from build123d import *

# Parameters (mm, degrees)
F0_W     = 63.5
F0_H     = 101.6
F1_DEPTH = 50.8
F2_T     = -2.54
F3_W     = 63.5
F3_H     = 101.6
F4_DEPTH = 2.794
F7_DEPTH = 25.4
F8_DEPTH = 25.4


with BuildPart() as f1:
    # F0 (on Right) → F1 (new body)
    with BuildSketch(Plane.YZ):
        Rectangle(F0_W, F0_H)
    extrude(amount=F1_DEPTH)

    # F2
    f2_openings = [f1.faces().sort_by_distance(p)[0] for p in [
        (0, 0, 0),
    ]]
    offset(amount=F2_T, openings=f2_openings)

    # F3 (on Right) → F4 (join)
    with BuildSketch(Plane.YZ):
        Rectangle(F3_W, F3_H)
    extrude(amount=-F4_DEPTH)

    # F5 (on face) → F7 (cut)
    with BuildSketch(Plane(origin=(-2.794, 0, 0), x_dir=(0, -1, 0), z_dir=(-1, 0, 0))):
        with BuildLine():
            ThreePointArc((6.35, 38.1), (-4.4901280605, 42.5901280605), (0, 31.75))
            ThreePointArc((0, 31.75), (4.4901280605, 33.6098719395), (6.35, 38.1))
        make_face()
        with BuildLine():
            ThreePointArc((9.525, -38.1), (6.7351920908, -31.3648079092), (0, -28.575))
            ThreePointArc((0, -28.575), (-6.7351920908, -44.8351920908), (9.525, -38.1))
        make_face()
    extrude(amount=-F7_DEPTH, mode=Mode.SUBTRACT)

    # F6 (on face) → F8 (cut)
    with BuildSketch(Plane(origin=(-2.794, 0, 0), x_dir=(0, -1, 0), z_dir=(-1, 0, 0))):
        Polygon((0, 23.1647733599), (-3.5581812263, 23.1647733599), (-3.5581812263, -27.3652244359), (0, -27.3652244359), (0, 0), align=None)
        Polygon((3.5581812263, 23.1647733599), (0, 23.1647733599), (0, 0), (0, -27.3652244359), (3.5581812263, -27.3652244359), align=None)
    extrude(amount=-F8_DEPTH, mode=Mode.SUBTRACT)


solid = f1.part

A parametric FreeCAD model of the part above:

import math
import FreeCAD as App
import Part
import Sketcher
from FreeCAD import Vector
Q = App.Units.Quantity


def faces_at(feature, points):
    """Names of the faces that lie closest to the given points."""
    faces = feature.Shape.Faces
    near = lambda p: min(range(len(faces)), key=lambda i: faces[i].distToShape(Part.Vertex(*p))[0])
    return sorted({f"Face{near(p) + 1}" for p in points})

doc = App.newDocument("Part")
body = doc.addObject("PartDesign::Body", "Body")

sketch1 = body.newObject("Sketcher::SketchObject", "Sketch")
sketch1.AttachmentSupport = (doc.getObject("YZ_Plane"), [""])
sketch1.MapMode = "FlatFace"
sketch1.addGeometry([
    Part.LineSegment(Vector(-32, 51, 0), Vector(-32, -51, 0)),
    Part.LineSegment(Vector(-32, -51, 0), Vector(32, -51, 0)),
    Part.LineSegment(Vector(32, -51, 0), Vector(32, 51, 0)),
    Part.LineSegment(Vector(32, 51, 0), Vector(-32, 51, 0)),
], False)
sketch1.addConstraint([
    Sketcher.Constraint("Coincident", 0, 2, 1, 1),
    Sketcher.Constraint("Coincident", 1, 2, 2, 1),
    Sketcher.Constraint("Coincident", 2, 2, 3, 1),
    Sketcher.Constraint("Coincident", 3, 2, 0, 1),
    Sketcher.Constraint("Vertical", 0),
    Sketcher.Constraint("Horizontal", 1),
    Sketcher.Constraint("Vertical", 2),
    Sketcher.Constraint("Horizontal", 3),
    Sketcher.Constraint("Symmetric", 0, 2, 2, 2, -1, 1),
    Sketcher.Constraint("DistanceY", 0, 2, 0, 1, Q("4 in")),
    Sketcher.Constraint("DistanceX", 1, 1, 1, 2, Q("2.5 in")),
])
pad1 = body.newObject("PartDesign::Pad", "Pad")
pad1.Profile = sketch1
pad1.Length = Q("2 in")
doc.recompute()

thickness = body.newObject("PartDesign::Thickness", "Thickness")
thickness.Base = (pad1, faces_at(pad1, [(0, 0, 0)]))
thickness.Value = Q("0.1 in")
thickness.Reversed = True
thickness.Join = "Arc"

sketch2 = body.newObject("Sketcher::SketchObject", "Sketch001")
sketch2.AttachmentSupport = (doc.getObject("YZ_Plane"), [""])
sketch2.MapMode = "FlatFace"
sketch2.addGeometry([
    Part.LineSegment(Vector(-32, 51, 0), Vector(-32, -51, 0)),
    Part.LineSegment(Vector(-32, -51, 0), Vector(32, -51, 0)),
    Part.LineSegment(Vector(32, -51, 0), Vector(32, 51, 0)),
    Part.LineSegment(Vector(32, 51, 0), Vector(-32, 51, 0)),
], False)
sketch2.addConstraint([
    Sketcher.Constraint("Coincident", 0, 2, 1, 1),
    Sketcher.Constraint("Coincident", 1, 2, 2, 1),
    Sketcher.Constraint("Coincident", 2, 2, 3, 1),
    Sketcher.Constraint("Coincident", 3, 2, 0, 1),
    Sketcher.Constraint("Vertical", 0),
    Sketcher.Constraint("Horizontal", 1),
    Sketcher.Constraint("Vertical", 2),
    Sketcher.Constraint("Horizontal", 3),
    Sketcher.Constraint("Symmetric", 0, 2, 2, 2, -1, 1),
    Sketcher.Constraint("DistanceY", 0, 2, 0, 1, Q("4 in")),
    Sketcher.Constraint("DistanceX", 1, 1, 1, 2, Q("2.5 in")),
])
pad2 = body.newObject("PartDesign::Pad", "Pad001")
pad2.Profile = sketch2
pad2.Length = Q("0.11 in")
pad2.Reversed = True

sketch3 = body.newObject("Sketcher::SketchObject", "Sketch002")
sketch3.AttachmentSupport = (doc.getObject("YZ_Plane"), [""])
sketch3.MapMode = "FlatFace"
sketch3.AttachmentOffset = App.Placement(Vector(0, 0, -0.11 * 25.4), App.Rotation())
sketch3.addGeometry([
    Part.ArcOfCircle(Part.Circle(Vector(0, 38, 0), Vector(0, 0, 1), 6), math.radians(-90), math.radians(180)),
    Part.ArcOfCircle(Part.Circle(Vector(0, 38, 0), Vector(0, 0, 1), 6), math.radians(180), math.radians(270)),
    Part.Circle(Vector(0, -38, 0), Vector(0, 0, 1), 10),
], False)
sketch3.addConstraint([
    Sketcher.Constraint("Tangent", 0, 1, 1, 2),
    Sketcher.Constraint("Coincident", 1, 1, 0, 2),
    Sketcher.Constraint("Symmetric", 0, 3, 2, 3, -1, 1),
    Sketcher.Constraint("PointOnObject", 0, 3, -2),
    Sketcher.Constraint("PointOnObject", 0, 1, -2),
    Sketcher.Constraint("Horizontal", 0, 3, 1, 1),
    Sketcher.Constraint("Diameter", 2, Q("0.75 in")),
    Sketcher.Constraint("Radius", 0, Q("0.25 in")),
    Sketcher.Constraint("DistanceY", 2, 3, 0, 3, Q("3 in")),
])
pocket1 = body.newObject("PartDesign::Pocket", "Pocket")
pocket1.Profile = sketch3
pocket1.Length = Q("1 in")
pocket1.Reversed = True

sketch4 = body.newObject("Sketcher::SketchObject", "Sketch003")
sketch4.AttachmentSupport = (doc.getObject("YZ_Plane"), [""])
sketch4.MapMode = "FlatFace"
sketch4.AttachmentOffset = App.Placement(Vector(0, 0, -0.11 * 25.4), App.Rotation())
sketch4.addGeometry([
    Part.LineSegment(Vector(4, 23, 0), Vector(4, -27, 0)),
    Part.LineSegment(Vector(4, -27, 0), Vector(-4, -27, 0)),
    Part.LineSegment(Vector(-4, -27, 0), Vector(-4, 23, 0)),
    Part.LineSegment(Vector(-4, 23, 0), Vector(4, 23, 0)),
], False)
sketch4.addConstraint([
    Sketcher.Constraint("Coincident", 0, 2, 1, 1),
    Sketcher.Constraint("Coincident", 1, 2, 2, 1),
    Sketcher.Constraint("Coincident", 2, 2, 3, 1),
    Sketcher.Constraint("Coincident", 3, 2, 0, 1),
    Sketcher.Constraint("Vertical", 0),
    Sketcher.Constraint("Horizontal", 1),
    Sketcher.Constraint("Vertical", 2),
    Sketcher.Constraint("Horizontal", 3),
    Sketcher.Constraint("DistanceX", 1, 2, 1, 1, Q("7.116362 mm")),
    Sketcher.Constraint("DistanceY", 0, 2, 0, 1, Q("50.529998 mm")),
    Sketcher.Constraint("DistanceX", -1, 1, 0, 2, Q("3.558181 mm")),
    Sketcher.Constraint("DistanceY", 0, 2, -1, 1, Q("27.365224 mm")),
])
pocket2 = body.newObject("PartDesign::Pocket", "Pocket001")
pocket2.Profile = sketch4
pocket2.Length = Q("1 in")
pocket2.Reversed = True

doc.recompute()
